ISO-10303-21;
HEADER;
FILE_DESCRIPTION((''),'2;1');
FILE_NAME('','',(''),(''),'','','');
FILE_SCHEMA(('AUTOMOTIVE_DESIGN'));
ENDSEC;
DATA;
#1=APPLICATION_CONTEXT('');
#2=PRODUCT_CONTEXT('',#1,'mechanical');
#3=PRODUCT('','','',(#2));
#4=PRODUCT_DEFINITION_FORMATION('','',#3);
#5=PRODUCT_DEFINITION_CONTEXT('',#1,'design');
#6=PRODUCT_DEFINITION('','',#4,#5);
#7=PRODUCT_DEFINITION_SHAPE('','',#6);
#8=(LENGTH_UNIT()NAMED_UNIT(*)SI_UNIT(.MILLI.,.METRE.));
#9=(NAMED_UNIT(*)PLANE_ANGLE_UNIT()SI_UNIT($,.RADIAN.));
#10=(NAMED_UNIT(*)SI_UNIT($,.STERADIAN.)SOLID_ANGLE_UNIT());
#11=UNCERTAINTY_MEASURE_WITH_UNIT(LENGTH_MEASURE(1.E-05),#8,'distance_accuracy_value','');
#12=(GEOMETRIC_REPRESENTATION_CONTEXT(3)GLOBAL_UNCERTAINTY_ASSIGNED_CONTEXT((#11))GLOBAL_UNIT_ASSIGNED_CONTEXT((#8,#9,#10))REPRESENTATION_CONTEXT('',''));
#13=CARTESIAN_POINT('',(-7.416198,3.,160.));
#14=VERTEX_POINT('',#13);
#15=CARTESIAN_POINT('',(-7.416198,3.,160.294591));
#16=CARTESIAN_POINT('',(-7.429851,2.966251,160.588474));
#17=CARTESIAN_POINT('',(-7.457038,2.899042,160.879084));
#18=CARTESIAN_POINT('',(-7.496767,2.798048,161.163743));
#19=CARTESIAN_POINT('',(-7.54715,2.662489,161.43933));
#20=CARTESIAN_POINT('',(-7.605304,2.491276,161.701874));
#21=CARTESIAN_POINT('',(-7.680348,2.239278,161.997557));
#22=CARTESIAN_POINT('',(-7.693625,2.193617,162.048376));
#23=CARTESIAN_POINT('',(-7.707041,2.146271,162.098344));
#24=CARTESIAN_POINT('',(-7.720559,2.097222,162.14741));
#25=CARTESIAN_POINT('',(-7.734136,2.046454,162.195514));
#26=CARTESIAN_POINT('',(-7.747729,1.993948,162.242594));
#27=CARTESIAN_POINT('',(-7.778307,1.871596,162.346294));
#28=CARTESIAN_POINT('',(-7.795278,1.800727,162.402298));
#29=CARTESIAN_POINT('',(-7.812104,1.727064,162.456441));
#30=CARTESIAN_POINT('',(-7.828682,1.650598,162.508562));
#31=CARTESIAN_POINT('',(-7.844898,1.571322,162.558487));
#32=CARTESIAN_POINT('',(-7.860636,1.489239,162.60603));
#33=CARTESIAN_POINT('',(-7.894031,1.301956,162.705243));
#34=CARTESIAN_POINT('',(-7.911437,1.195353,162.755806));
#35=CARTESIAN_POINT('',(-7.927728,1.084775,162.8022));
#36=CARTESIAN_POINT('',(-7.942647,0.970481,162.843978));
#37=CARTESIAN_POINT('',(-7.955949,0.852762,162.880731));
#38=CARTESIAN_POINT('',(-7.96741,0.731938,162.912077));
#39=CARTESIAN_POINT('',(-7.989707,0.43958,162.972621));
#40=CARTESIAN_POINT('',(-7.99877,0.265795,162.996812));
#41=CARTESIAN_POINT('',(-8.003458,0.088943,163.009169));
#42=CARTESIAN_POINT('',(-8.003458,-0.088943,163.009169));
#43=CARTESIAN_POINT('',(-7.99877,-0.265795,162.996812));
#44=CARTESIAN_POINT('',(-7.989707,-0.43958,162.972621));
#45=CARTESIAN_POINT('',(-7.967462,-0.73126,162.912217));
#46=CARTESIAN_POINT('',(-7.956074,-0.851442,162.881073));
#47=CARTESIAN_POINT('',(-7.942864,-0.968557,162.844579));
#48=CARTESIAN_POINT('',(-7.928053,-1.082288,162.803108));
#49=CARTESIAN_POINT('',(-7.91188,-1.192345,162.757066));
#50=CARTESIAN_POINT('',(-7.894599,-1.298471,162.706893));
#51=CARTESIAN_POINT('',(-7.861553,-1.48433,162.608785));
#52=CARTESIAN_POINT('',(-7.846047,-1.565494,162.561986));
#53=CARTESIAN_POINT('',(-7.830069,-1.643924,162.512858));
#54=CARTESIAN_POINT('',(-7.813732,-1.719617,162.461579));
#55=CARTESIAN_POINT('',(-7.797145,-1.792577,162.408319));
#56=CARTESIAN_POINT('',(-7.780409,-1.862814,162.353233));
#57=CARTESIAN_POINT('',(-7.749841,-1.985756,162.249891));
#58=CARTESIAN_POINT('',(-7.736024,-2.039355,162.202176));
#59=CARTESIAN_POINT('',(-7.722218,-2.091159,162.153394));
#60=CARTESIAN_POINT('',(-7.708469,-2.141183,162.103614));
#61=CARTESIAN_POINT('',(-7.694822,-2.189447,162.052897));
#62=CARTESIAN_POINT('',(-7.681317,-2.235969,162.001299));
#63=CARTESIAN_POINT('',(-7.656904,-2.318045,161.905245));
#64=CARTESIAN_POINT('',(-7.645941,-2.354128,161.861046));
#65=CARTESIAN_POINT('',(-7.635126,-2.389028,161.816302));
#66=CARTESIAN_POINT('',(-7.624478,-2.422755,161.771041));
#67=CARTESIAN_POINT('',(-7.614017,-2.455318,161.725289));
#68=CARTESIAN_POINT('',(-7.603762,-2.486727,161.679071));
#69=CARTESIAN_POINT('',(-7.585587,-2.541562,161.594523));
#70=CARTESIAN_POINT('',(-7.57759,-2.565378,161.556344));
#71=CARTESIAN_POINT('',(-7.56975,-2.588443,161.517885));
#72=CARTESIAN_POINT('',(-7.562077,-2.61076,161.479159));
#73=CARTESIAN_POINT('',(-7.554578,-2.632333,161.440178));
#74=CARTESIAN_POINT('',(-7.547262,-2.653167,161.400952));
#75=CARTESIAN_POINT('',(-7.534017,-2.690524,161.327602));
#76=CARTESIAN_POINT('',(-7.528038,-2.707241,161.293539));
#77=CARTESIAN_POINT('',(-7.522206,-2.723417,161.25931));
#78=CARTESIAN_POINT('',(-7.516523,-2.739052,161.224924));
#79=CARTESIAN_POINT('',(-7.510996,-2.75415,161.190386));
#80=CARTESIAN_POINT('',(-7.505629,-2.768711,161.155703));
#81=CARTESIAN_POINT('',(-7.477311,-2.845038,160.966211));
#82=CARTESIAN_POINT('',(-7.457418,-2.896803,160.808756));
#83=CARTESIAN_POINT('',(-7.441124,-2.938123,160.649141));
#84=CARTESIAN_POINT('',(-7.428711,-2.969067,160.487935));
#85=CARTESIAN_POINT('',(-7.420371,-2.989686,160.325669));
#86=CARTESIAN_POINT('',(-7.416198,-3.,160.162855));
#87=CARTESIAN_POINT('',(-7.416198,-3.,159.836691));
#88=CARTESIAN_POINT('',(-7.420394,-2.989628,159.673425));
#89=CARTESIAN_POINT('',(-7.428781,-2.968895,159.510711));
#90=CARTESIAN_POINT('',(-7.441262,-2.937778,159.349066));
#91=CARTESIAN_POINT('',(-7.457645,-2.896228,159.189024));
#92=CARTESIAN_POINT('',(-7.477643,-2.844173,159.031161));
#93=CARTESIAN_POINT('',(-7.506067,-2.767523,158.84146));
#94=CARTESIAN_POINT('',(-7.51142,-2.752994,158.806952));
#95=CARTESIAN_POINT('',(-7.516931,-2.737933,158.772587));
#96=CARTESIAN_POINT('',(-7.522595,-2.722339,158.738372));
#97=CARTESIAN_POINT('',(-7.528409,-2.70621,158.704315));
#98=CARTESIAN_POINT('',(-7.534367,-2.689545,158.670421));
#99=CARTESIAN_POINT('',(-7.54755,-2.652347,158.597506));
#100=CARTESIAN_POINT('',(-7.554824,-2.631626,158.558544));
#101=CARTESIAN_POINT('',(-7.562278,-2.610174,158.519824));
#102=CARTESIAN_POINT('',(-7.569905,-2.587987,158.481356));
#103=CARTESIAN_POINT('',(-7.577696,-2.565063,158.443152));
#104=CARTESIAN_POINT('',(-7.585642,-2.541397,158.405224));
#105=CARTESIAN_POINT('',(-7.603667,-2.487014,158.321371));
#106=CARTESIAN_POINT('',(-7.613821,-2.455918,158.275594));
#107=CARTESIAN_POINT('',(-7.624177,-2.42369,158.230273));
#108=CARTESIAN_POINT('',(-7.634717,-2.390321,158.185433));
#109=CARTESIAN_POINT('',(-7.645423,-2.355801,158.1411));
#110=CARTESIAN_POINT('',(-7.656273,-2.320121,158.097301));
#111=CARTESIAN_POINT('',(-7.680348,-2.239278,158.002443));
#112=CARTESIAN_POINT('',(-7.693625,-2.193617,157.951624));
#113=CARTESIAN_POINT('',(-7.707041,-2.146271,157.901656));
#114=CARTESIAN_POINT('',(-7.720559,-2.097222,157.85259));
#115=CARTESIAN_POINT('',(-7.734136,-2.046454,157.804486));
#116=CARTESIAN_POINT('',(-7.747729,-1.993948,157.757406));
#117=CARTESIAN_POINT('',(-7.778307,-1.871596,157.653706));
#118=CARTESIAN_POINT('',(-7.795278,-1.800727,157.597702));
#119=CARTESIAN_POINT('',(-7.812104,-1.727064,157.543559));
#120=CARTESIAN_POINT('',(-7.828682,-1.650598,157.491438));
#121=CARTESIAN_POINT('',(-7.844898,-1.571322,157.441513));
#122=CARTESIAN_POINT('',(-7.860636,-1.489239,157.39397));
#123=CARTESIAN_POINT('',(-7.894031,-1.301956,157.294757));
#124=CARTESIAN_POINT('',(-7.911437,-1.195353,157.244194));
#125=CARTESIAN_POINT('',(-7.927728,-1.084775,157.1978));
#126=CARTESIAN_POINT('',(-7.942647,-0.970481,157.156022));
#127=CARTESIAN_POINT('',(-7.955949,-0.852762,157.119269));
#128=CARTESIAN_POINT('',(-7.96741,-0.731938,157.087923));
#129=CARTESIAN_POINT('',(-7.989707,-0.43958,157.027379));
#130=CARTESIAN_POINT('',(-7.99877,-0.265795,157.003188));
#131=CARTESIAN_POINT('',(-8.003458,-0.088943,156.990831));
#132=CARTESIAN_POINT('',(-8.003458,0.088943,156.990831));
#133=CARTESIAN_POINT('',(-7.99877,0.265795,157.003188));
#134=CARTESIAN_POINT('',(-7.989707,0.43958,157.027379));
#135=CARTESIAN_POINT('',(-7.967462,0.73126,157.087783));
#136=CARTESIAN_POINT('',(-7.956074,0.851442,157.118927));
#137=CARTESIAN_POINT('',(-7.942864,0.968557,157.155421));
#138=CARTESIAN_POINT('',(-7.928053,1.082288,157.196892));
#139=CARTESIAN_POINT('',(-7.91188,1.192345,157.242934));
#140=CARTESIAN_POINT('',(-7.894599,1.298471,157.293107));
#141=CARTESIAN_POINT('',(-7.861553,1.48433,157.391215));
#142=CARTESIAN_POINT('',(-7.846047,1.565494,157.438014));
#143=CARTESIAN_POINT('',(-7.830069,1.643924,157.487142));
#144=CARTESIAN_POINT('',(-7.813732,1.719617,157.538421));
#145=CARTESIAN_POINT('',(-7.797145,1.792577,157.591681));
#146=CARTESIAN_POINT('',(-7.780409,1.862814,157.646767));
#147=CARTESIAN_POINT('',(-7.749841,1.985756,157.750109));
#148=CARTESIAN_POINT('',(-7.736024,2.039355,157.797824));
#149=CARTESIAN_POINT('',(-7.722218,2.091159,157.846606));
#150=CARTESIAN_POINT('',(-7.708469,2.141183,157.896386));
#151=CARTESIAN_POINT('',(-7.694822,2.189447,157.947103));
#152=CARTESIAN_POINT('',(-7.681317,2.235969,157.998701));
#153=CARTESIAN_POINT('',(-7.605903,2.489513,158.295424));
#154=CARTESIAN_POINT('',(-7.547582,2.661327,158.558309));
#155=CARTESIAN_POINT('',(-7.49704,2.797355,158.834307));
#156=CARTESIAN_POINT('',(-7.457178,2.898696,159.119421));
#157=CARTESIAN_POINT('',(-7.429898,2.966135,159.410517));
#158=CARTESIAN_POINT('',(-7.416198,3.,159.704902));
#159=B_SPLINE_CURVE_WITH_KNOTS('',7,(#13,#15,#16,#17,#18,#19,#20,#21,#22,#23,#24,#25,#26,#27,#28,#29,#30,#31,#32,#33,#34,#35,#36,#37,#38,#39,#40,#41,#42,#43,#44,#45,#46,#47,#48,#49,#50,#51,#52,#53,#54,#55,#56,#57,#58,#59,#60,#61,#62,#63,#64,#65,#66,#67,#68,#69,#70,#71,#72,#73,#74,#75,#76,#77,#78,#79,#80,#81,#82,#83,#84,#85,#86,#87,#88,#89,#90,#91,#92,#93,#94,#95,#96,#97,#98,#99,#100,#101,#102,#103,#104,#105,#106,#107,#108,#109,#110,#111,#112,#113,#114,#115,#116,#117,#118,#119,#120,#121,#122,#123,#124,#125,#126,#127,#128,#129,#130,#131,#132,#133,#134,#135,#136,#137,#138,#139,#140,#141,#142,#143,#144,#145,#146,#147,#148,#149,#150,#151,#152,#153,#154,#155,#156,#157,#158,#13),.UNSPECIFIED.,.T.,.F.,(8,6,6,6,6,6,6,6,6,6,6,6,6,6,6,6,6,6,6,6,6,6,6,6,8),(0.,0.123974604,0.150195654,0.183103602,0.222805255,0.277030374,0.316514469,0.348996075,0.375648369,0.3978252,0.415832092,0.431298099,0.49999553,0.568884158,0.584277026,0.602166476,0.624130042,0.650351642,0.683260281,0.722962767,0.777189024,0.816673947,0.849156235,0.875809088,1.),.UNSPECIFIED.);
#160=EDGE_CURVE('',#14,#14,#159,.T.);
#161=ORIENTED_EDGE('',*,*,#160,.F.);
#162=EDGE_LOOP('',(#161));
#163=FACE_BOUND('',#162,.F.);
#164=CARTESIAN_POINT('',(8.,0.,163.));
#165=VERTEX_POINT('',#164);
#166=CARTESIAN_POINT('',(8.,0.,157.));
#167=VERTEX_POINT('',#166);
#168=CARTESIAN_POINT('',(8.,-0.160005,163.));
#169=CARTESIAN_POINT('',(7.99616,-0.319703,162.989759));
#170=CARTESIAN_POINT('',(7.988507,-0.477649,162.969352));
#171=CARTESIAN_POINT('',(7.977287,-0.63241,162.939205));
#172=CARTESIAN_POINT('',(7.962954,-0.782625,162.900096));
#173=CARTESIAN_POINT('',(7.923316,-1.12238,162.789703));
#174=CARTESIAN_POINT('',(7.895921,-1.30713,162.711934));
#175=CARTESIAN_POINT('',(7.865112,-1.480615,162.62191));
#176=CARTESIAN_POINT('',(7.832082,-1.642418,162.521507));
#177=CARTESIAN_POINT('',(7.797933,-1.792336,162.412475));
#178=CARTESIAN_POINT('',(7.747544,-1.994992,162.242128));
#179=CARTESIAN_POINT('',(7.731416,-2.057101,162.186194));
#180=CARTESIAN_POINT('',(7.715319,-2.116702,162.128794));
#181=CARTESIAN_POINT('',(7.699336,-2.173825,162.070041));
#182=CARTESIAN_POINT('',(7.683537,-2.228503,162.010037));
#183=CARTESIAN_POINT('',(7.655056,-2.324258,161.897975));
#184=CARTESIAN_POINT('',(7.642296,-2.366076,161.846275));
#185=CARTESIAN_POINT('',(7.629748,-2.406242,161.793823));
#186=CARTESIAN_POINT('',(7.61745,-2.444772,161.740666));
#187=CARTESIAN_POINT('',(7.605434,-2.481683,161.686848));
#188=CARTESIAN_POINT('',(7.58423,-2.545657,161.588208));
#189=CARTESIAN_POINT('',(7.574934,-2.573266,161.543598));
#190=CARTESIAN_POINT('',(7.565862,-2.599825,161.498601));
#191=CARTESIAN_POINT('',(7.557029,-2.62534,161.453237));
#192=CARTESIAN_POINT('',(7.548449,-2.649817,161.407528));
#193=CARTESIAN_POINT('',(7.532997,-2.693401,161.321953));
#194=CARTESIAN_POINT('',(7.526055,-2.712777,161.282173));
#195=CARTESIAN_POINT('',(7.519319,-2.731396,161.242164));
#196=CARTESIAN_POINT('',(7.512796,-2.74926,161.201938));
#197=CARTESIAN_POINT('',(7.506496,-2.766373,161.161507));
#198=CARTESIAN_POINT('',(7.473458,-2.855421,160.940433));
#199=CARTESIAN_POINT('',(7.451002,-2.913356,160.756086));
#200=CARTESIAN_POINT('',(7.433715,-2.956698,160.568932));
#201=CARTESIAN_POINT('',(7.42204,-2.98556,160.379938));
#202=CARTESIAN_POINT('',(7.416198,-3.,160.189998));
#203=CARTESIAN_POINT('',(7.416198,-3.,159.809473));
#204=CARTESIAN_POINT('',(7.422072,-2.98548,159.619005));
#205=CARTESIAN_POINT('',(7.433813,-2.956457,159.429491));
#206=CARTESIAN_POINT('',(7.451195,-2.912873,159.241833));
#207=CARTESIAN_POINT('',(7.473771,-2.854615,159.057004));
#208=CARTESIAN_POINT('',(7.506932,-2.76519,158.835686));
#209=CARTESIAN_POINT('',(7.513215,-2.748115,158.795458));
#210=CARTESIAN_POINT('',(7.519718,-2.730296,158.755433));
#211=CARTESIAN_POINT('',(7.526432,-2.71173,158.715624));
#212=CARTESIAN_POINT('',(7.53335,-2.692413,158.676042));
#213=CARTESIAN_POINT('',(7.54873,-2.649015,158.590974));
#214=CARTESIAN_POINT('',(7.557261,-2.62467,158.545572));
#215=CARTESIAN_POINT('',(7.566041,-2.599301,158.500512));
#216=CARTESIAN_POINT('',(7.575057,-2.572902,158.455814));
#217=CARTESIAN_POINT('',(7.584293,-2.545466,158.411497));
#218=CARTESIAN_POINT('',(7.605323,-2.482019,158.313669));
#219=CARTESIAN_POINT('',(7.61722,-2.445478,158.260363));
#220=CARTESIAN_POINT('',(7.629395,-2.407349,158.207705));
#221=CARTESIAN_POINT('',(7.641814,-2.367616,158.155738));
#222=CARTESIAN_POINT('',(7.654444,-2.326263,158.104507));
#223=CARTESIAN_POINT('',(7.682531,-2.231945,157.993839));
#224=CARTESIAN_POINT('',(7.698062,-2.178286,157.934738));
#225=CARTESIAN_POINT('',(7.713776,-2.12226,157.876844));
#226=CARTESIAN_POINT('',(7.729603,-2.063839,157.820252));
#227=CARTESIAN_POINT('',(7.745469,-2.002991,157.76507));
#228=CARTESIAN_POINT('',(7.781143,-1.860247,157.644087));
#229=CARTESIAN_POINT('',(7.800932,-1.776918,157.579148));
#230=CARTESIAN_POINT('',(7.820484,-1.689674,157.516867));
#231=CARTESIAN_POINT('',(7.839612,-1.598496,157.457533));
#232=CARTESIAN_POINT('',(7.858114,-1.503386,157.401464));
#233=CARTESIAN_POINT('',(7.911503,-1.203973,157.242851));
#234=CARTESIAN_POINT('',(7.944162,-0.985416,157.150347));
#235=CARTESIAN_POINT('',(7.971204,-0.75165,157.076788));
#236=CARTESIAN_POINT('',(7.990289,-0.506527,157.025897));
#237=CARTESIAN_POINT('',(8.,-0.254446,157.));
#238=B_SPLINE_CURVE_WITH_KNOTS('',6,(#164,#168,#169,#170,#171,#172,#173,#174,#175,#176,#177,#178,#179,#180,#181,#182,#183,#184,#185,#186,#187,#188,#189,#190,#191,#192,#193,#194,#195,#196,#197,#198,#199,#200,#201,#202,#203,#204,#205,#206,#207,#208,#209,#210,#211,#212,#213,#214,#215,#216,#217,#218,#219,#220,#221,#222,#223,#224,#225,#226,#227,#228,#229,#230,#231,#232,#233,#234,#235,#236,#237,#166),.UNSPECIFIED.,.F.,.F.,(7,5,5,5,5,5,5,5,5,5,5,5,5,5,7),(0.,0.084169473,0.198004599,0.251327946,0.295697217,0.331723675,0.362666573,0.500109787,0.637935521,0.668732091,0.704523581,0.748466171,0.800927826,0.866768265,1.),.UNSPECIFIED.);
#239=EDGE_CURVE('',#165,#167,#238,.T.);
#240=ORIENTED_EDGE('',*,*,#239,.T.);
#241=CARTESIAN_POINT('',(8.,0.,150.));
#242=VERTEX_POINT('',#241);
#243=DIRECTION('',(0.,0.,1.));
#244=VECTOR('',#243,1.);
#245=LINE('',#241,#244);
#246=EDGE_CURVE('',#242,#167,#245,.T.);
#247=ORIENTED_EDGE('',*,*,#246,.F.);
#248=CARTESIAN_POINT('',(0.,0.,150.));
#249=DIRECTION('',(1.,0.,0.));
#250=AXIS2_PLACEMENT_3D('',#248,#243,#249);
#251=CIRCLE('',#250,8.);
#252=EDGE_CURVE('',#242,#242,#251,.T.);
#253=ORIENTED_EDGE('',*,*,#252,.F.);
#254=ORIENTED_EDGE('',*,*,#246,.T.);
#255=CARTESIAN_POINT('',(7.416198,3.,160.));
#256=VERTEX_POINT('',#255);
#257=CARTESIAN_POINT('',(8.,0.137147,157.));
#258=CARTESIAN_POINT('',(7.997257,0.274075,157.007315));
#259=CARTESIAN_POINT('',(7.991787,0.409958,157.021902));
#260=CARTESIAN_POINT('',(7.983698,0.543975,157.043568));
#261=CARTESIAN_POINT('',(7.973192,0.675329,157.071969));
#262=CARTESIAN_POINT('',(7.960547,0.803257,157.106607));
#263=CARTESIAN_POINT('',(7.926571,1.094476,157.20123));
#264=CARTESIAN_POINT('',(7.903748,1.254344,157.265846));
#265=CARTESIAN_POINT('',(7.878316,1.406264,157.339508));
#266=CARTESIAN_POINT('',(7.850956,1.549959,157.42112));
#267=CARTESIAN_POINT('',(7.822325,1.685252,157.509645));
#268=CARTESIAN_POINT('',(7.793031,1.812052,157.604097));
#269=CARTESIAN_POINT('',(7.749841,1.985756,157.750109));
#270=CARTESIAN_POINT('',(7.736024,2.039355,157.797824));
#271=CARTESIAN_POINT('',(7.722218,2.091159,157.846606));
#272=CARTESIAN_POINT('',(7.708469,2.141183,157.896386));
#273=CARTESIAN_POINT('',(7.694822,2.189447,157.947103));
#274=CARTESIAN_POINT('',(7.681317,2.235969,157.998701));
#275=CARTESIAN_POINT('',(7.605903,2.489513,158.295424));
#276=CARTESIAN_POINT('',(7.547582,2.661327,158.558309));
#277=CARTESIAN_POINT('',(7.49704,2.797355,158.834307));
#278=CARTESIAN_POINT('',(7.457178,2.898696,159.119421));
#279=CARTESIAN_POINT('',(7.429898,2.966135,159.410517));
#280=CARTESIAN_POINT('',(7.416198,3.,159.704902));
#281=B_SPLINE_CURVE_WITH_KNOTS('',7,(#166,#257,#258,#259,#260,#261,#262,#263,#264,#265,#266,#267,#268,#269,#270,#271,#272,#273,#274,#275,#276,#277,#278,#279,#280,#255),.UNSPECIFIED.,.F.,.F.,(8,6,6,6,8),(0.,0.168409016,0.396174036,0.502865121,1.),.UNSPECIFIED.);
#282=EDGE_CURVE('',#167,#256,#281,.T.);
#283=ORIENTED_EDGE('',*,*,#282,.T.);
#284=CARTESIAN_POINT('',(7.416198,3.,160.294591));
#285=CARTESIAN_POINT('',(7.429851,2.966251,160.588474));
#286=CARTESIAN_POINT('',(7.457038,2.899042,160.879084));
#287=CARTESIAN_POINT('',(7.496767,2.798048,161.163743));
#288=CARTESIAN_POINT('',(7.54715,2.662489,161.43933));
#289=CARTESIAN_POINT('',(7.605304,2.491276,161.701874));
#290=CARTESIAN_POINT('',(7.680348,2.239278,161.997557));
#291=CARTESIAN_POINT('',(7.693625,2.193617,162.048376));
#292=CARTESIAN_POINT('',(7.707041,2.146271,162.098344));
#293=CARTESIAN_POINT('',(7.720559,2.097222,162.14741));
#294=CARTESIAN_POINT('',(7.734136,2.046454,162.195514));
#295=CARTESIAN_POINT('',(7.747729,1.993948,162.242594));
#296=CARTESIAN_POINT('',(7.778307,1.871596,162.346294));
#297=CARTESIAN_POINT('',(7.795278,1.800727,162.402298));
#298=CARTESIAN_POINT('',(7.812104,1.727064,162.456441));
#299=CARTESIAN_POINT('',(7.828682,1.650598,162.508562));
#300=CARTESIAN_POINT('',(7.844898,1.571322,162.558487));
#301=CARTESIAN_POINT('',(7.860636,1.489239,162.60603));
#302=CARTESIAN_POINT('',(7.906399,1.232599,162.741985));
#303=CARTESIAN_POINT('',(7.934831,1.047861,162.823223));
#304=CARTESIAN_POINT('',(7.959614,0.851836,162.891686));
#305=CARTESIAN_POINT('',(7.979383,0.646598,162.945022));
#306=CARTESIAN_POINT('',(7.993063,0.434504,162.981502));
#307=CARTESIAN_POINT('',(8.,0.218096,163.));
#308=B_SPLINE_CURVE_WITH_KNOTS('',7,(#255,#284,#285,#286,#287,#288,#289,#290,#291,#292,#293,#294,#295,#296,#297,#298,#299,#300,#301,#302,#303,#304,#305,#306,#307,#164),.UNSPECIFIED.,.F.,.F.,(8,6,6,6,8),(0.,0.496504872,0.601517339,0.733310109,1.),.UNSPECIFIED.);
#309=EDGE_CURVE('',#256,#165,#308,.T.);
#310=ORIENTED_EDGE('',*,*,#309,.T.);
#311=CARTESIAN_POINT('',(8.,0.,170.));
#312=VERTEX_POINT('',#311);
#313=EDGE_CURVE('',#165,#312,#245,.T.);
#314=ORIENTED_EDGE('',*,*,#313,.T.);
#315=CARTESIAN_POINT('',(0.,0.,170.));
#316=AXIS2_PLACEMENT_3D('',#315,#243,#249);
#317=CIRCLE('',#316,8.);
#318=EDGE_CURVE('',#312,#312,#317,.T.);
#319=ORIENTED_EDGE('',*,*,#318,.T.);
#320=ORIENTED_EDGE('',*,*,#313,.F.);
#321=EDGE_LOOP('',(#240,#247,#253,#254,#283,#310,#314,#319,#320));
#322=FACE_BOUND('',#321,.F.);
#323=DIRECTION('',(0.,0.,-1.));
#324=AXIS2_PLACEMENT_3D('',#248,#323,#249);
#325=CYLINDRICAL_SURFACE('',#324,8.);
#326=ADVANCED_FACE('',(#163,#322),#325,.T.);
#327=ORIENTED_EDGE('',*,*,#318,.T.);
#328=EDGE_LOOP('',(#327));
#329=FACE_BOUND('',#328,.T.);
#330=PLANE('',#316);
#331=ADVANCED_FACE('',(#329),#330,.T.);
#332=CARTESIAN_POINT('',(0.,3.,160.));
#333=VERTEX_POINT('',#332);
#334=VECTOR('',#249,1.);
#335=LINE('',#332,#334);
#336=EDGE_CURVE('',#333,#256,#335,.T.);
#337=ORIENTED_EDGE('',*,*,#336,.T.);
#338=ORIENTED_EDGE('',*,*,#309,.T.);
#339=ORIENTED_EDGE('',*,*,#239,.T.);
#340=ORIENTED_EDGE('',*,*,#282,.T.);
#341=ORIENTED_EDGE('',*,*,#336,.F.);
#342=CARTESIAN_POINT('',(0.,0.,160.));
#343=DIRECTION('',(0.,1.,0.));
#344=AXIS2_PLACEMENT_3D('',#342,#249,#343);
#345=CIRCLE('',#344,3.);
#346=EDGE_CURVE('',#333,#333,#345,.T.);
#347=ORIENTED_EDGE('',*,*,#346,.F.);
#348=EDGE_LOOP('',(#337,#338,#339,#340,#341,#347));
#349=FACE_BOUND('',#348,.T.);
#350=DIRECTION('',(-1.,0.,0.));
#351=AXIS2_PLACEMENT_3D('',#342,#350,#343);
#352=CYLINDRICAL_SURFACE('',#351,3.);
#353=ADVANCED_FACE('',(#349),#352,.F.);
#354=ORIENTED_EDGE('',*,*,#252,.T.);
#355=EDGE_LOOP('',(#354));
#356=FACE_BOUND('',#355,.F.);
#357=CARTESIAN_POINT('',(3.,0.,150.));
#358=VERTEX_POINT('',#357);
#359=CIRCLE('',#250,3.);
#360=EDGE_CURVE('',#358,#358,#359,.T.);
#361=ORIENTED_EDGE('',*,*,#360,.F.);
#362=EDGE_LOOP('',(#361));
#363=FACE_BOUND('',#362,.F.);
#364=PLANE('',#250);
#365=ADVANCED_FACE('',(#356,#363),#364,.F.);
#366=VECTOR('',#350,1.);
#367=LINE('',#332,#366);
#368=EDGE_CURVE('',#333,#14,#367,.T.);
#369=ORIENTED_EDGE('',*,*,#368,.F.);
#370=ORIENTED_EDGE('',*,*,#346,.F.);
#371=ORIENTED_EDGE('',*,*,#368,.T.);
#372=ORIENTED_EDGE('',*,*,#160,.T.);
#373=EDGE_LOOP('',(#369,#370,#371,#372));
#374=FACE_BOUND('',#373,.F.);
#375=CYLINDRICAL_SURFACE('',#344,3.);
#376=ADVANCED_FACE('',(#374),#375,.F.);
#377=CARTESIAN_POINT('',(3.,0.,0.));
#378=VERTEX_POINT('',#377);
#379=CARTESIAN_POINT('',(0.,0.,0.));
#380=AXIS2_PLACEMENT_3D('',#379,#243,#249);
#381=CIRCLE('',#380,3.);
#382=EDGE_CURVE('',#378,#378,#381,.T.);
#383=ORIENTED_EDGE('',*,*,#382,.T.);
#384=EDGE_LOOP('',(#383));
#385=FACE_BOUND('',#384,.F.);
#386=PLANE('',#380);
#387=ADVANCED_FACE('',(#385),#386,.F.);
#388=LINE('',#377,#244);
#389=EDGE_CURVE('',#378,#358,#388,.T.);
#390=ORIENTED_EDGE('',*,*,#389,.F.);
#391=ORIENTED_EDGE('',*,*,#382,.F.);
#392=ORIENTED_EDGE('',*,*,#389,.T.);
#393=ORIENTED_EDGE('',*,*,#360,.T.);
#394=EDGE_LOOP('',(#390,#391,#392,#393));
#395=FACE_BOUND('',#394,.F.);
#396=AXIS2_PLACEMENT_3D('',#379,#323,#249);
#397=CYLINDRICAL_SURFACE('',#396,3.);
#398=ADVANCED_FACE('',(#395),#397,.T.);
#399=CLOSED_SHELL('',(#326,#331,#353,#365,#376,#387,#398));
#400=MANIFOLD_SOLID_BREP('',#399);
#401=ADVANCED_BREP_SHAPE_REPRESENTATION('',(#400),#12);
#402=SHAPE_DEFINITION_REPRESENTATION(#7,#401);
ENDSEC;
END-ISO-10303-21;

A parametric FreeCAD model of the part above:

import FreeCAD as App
import Part
import Sketcher
from FreeCAD import Vector
Q = App.Units.Quantity

doc = App.newDocument("Part")
body = doc.addObject("PartDesign::Body", "Body")

# Sketch on XY plane
sketch1 = doc.addObject("Sketcher::SketchObject", "Sketch")
body.addObject(sketch1)
sketch1.AttachmentSupport = (doc.XY_Plane, [""])
sketch1.MapMode = "FlatFace"
sketch1.addGeometry(Part.Circle(Vector(0, 0, 0), Vector(0, 0, 1), 3), False)
sketch1.addConstraint([
    Sketcher.Constraint("Coincident", 0, 3, -1, 1),
    Sketcher.Constraint("Diameter", 0, Q("6 mm")),
])
pad1 = doc.addObject("PartDesign::Pad", "Pad")
body.addObject(pad1)
pad1.Profile = sketch1
pad1.Length = 150

# Sketch on XY plane
sketch2 = doc.addObject("Sketcher::SketchObject", "Sketch001")
body.addObject(sketch2)
sketch2.AttachmentSupport = (doc.XY_Plane, [""])
sketch2.MapMode = "FlatFace"
sketch2.AttachmentOffset = App.Placement(Vector(0, 0, 150), App.Rotation())
sketch2.addGeometry(Part.Circle(Vector(0, 0, 0), Vector(0, 0, 1), 8), False)
sketch2.addConstraint([
    Sketcher.Constraint("Coincident", 0, 3, -1, 1),
    Sketcher.Constraint("Diameter", 0, Q("16 mm")),
])
pad2 = doc.addObject("PartDesign::Pad", "Pad001")
body.addObject(pad2)
pad2.Profile = sketch2
pad2.Length = 20

# Sketch on YZ plane
sketch3 = doc.addObject("Sketcher::SketchObject", "Sketch002")
body.addObject(sketch3)
sketch3.AttachmentSupport = (doc.YZ_Plane, [""])
sketch3.MapMode = "FlatFace"
sketch3.addGeometry(Part.Circle(Vector(0, 160, 0), Vector(0, 0, 1), 3), False)
sketch3.addConstraint([
    Sketcher.Constraint("PointOnObject", 0, 3, -2),
    Sketcher.Constraint("Diameter", 0, Q("6 mm")),
    Sketcher.Constraint("DistanceY", -1, 1, 0, 3, Q("160 mm")),
])
pocket1 = doc.addObject("PartDesign::Pocket", "Pocket")
body.addObject(pocket1)
pocket1.Profile = sketch3
pocket1.Length = 20
pocket1.Midplane = True

doc.recompute()
